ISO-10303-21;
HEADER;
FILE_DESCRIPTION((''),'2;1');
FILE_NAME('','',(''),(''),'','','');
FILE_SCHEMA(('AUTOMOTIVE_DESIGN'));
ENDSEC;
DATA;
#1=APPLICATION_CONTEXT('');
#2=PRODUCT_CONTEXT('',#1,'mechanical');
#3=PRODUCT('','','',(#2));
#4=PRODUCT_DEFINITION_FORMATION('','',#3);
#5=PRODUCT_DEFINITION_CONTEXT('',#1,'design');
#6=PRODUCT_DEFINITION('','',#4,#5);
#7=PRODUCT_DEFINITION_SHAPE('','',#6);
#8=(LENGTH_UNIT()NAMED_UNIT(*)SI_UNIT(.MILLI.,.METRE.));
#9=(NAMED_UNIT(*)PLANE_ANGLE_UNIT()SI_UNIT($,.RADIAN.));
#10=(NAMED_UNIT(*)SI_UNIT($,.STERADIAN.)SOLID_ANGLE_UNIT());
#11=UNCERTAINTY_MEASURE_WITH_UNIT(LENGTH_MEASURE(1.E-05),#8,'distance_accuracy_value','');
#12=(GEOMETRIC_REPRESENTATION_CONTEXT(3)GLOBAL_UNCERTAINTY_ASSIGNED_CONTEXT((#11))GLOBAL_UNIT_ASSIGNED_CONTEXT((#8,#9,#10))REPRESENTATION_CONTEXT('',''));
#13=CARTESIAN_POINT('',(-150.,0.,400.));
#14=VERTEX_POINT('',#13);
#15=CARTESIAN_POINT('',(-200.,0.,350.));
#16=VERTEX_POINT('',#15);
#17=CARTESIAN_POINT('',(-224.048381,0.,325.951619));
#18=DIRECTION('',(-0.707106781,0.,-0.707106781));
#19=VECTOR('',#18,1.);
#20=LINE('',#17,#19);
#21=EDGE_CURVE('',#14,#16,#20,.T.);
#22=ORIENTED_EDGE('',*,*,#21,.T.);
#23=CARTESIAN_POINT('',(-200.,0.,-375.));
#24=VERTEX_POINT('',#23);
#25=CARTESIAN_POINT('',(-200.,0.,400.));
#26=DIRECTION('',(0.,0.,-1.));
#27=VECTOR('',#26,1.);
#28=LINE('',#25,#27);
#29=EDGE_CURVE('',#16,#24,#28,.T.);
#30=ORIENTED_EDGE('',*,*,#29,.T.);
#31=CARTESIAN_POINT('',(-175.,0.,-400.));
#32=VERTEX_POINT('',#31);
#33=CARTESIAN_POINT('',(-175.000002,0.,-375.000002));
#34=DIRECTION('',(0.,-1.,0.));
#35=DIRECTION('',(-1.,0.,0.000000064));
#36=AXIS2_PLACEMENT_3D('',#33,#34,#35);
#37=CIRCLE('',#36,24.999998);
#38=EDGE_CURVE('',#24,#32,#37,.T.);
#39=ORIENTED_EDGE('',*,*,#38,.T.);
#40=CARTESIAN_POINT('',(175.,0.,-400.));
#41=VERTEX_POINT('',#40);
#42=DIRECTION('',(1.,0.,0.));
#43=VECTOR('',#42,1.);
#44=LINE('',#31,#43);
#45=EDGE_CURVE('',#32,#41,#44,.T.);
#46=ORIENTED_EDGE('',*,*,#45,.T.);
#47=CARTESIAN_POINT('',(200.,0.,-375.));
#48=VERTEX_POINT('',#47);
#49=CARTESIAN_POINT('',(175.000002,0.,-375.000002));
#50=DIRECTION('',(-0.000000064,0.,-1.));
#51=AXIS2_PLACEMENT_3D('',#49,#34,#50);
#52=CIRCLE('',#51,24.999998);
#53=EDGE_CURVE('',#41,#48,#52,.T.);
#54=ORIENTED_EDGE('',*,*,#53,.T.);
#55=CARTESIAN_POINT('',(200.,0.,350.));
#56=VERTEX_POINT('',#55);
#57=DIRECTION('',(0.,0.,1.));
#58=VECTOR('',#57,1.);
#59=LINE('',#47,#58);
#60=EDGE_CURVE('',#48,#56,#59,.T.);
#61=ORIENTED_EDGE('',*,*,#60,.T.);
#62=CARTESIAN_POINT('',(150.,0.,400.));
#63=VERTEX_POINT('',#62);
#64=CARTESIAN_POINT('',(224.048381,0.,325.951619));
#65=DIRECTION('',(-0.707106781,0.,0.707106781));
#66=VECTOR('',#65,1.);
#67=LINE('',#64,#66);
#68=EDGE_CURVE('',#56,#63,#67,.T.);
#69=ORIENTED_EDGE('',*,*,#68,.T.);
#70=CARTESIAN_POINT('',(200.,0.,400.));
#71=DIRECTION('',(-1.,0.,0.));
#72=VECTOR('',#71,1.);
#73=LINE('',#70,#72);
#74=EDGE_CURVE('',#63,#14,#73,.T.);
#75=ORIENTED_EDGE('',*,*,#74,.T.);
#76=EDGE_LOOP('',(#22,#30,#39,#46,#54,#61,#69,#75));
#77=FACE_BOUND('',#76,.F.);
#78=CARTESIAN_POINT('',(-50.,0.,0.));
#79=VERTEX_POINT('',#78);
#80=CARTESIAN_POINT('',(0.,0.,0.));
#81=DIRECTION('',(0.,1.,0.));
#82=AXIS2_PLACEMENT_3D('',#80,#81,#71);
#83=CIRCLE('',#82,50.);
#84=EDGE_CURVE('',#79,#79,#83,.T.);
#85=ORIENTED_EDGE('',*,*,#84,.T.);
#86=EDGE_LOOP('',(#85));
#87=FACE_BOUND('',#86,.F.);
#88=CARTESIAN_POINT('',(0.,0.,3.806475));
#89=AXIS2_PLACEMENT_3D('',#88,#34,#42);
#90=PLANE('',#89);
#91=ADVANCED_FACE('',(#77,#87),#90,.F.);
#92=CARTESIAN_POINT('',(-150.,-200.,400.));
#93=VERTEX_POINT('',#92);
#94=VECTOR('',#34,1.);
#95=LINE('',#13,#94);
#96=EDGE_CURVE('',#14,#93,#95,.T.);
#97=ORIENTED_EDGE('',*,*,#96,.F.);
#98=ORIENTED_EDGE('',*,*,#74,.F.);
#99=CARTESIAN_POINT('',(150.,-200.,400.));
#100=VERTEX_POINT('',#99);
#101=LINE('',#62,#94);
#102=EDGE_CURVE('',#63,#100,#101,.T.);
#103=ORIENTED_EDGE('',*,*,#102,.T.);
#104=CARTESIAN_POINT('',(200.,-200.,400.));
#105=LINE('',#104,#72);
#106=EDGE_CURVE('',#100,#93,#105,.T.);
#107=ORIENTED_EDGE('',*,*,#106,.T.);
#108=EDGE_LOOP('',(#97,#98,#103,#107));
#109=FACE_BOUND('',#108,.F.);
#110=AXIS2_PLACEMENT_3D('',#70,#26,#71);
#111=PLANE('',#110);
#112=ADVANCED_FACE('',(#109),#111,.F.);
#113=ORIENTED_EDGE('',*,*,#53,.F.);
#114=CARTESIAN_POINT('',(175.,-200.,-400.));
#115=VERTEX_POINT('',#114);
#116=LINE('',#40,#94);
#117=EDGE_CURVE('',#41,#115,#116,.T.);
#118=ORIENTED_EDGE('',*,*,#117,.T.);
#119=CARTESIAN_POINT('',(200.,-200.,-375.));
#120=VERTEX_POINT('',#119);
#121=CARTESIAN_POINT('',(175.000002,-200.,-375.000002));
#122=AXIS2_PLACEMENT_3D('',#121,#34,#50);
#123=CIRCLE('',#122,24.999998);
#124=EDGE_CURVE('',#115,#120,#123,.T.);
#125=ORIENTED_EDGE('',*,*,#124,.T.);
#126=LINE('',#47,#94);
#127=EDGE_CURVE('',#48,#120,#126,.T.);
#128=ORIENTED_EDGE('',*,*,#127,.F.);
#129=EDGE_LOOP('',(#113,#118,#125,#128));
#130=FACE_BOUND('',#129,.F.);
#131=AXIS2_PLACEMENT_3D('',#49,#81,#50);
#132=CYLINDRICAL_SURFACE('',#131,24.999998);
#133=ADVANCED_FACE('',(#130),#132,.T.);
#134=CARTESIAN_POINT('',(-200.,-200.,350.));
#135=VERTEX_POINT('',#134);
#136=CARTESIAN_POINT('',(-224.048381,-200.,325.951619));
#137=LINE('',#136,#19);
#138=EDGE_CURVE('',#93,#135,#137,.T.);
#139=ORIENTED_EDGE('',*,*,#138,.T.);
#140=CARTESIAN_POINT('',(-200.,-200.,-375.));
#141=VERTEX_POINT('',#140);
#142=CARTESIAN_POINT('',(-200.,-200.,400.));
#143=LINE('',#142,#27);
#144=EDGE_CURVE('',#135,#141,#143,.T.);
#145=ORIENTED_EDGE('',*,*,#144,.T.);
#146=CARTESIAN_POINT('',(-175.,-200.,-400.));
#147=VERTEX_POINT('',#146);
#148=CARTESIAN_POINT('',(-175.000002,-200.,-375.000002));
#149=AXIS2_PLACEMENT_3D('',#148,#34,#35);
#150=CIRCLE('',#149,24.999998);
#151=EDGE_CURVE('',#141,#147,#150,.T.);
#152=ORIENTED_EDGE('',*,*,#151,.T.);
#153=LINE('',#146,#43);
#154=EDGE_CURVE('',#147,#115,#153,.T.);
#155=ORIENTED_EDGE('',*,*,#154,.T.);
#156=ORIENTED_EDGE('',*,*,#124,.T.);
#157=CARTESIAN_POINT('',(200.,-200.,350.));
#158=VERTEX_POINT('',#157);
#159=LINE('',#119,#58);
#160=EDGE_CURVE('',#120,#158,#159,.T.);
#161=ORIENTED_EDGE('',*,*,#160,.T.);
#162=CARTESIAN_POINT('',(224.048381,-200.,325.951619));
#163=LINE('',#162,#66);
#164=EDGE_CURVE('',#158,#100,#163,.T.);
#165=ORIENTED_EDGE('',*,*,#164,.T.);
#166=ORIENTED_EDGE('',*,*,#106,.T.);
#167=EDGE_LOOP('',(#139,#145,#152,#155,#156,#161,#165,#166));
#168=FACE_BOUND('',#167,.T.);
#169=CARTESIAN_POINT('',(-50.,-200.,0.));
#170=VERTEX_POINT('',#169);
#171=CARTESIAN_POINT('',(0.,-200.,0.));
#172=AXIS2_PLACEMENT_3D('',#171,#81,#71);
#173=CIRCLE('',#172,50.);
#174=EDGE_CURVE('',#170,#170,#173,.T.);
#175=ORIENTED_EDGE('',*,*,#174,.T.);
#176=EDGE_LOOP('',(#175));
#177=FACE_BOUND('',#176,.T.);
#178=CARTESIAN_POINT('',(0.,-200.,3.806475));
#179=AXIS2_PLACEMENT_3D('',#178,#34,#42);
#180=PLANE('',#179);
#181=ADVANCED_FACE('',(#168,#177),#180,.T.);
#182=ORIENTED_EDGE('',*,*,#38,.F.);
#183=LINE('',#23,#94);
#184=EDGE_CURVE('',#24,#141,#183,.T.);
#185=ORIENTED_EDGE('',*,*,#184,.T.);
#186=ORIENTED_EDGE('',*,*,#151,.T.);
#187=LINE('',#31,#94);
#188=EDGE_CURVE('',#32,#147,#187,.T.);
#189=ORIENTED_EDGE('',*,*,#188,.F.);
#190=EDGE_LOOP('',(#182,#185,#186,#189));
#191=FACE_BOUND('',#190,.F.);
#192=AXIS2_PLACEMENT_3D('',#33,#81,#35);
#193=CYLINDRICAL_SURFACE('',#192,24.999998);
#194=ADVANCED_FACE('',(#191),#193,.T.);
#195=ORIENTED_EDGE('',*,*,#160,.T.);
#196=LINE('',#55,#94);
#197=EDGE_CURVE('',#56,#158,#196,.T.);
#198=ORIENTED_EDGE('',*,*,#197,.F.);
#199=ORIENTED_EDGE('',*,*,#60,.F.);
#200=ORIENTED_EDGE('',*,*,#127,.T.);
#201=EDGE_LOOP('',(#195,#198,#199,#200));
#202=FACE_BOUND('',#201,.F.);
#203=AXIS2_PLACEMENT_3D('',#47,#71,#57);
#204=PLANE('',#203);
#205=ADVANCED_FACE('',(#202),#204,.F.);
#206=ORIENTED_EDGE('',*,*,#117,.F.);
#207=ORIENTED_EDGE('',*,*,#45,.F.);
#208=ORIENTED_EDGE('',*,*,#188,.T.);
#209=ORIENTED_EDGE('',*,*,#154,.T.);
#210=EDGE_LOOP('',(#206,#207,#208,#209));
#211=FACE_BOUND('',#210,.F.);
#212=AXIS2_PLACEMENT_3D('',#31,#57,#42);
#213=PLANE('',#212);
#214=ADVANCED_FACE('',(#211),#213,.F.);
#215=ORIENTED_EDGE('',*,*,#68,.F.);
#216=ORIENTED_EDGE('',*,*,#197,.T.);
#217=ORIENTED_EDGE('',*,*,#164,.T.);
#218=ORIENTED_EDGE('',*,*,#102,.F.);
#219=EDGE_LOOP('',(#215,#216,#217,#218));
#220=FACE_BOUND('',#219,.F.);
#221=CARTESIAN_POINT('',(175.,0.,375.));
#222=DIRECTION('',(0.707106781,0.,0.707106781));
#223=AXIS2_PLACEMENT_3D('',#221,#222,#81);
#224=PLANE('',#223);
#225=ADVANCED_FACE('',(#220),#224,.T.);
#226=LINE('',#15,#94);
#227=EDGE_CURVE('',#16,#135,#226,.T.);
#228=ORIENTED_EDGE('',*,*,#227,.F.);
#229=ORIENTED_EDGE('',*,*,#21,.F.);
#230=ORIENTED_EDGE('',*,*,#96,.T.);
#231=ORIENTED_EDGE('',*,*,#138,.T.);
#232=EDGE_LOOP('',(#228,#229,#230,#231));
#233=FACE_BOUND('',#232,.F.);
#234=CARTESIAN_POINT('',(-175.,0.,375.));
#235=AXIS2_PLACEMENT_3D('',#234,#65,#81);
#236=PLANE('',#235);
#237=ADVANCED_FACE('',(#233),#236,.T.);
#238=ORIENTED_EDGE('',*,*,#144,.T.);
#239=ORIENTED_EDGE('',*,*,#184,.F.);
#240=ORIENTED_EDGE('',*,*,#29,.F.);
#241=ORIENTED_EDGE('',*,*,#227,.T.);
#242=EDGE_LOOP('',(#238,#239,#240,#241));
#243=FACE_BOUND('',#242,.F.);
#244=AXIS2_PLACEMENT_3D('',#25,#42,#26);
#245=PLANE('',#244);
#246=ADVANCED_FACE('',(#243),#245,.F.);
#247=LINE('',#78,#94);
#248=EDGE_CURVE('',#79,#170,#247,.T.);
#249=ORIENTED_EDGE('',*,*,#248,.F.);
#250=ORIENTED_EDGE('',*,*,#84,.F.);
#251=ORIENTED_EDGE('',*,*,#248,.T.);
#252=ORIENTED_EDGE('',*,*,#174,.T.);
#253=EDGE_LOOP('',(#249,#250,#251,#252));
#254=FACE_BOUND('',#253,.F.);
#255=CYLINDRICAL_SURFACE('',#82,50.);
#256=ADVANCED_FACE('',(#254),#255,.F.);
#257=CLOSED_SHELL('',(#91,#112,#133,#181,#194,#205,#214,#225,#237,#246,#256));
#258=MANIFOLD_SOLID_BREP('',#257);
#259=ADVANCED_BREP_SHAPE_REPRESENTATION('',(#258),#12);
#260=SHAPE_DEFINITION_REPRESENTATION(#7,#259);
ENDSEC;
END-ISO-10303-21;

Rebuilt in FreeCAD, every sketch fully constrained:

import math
import FreeCAD as App
import Part
import Sketcher
Q = App.Units.Quantity


def edges_at(feature, points):
    """Names of the edges that pass closest to the given points."""
    edges = feature.Shape.Edges
    near = lambda p: min(range(len(edges)), key=lambda i: edges[i].distToShape(Part.Vertex(*p))[0])
    return sorted({f"Edge{near(p) + 1}" for p in points})

doc = App.newDocument("Part")
params = doc.addObject("Spreadsheet::Sheet", "Params")
for row, (alias, value) in enumerate([
    ("sketch1_radius", "24.999998 mm"),
    ("sketch1_width", "400 mm"),
    ("sketch1_height", "775 mm"),
    ("pad1_length", "200 mm"),
    ("chamfer_size", "50 mm"),
    ("sketch2_diameter", "100 mm"),
], start=1):
    params.set(f"A{row}", alias)
    params.set(f"B{row}", "=" + value)
    params.setAlias(f"B{row}", alias)

body = doc.addObject("PartDesign::Body", "Body")

sketch1 = body.newObject("Sketcher::SketchObject", "Sketch")
sketch1.AttachmentSupport = (doc.getObject("XZ_Plane"), [""])
sketch1.MapMode = "FlatFace"
sketch1.addGeometry([
    Part.LineSegment(App.Vector(200, -375, 0), App.Vector(200, 400, 0)),
    Part.LineSegment(App.Vector(200, 400, 0), App.Vector(-200, 400, 0)),
    Part.LineSegment(App.Vector(-200, 400, 0), App.Vector(-200, -375, 0)),
    Part.ArcOfCircle(Part.Circle(App.Vector(-175, -375, 0), App.Vector(0, 0, 1), 25), math.radians(180), math.radians(270)),
    Part.LineSegment(App.Vector(-175, -400, 0), App.Vector(175, -400, 0)),
    Part.ArcOfCircle(Part.Circle(App.Vector(175, -375, 0), App.Vector(0, 0, 1), 25), math.radians(-90), math.radians(0)),
], False)
sketch1.addConstraint([
    Sketcher.Constraint("Coincident", 0, 2, 1, 1),
    Sketcher.Constraint("Coincident", 1, 2, 2, 1),
    Sketcher.Constraint("Tangent", 2, 2, 3, 1),
    Sketcher.Constraint("Tangent", 3, 2, 4, 1),
    Sketcher.Constraint("Tangent", 4, 2, 5, 1),
    Sketcher.Constraint("Tangent", 5, 2, 0, 1),
    Sketcher.Constraint("Vertical", 0),
    Sketcher.Constraint("Horizontal", 1),
    Sketcher.Constraint("Vertical", 2),
    Sketcher.Constraint("Horizontal", 4),
    Sketcher.Constraint("Equal", 3, 5),
    Sketcher.Constraint("Radius", 3, Q("24.999998 mm")),
    Sketcher.Constraint("DistanceX", 1, 2, 1, 1, Q("400 mm")),
    Sketcher.Constraint("DistanceY", 0, 1, 0, 2, Q("775 mm")),
    Sketcher.Constraint("DistanceX", 3, 3, -1, 1, Q("175.000002 mm")),
    Sketcher.Constraint("DistanceY", 3, 3, -1, 1, Q("375.000002 mm")),
])
sketch1.setExpression("Constraints[11]", "Params.sketch1_radius")
sketch1.setExpression("Constraints[12]", "Params.sketch1_width")
sketch1.setExpression("Constraints[13]", "Params.sketch1_height")
pad1 = body.newObject("PartDesign::Pad", "Pad")
pad1.Profile = sketch1
pad1.setExpression("Length", "Params.pad1_length")
doc.recompute()

chamfer = body.newObject("PartDesign::Chamfer", "Chamfer")
chamfer.Base = (pad1, edges_at(pad1, [(200, -100, 400), (-200, -100, 400)]))
chamfer.setExpression("Size", "Params.chamfer_size")

sketch2 = body.newObject("Sketcher::SketchObject", "Sketch001")
sketch2.AttachmentSupport = (doc.getObject("XZ_Plane"), [""])
sketch2.MapMode = "FlatFace"
sketch2.addGeometry(Part.Circle(App.Vector(0, 0, 0), App.Vector(0, 0, 1), 50), False)
sketch2.addConstraint([
    Sketcher.Constraint("Coincident", 0, 3, -1, 1),
    Sketcher.Constraint("Diameter", 0, Q("100 mm")),
])
sketch2.setExpression("Constraints[1]", "Params.sketch2_diameter")
pocket1 = body.newObject("PartDesign::Pocket", "Pocket")
pocket1.Profile = sketch2
pocket1.Type = "ThroughAll"
pocket1.Reversed = True

doc.recompute()
